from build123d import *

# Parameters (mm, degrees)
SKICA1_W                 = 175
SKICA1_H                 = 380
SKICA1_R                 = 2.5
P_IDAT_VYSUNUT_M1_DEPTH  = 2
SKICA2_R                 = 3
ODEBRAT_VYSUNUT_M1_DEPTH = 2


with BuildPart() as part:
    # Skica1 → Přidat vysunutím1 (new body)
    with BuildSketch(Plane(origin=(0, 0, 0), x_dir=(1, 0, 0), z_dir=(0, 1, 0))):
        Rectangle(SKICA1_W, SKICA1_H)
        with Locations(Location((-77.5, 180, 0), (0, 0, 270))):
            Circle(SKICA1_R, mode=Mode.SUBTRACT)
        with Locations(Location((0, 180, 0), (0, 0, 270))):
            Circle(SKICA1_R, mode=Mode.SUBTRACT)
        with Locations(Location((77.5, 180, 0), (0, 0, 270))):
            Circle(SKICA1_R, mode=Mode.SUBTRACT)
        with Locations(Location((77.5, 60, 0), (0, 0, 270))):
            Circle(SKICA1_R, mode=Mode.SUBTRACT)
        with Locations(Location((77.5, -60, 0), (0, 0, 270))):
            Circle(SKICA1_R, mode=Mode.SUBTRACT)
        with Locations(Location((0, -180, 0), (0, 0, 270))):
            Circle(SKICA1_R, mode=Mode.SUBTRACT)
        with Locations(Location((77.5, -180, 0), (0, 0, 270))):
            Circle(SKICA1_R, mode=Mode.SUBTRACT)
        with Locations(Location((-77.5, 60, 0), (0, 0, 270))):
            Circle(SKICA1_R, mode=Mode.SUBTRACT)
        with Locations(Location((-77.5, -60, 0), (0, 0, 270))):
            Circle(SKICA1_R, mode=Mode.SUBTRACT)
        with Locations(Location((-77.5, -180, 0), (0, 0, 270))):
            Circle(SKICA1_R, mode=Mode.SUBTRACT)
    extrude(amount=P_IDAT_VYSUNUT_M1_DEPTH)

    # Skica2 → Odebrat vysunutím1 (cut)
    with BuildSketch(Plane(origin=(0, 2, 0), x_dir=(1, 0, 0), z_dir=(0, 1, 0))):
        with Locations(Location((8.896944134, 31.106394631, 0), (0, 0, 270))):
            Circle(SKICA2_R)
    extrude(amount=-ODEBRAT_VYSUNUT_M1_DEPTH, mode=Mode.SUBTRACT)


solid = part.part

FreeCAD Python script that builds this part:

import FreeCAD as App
import Part
import Sketcher

V = App.Vector


def add_polygon(sketch, points):
    """Adds a closed chain of lines whose ends are joined by coincident constraints."""
    first, n = sketch.GeometryCount, len(points)
    for a, b in zip(points, points[1:] + points[:1]):
        sketch.addGeometry(Part.LineSegment(App.Vector(*a, 0), App.Vector(*b, 0)), False)
    for i in range(n):
        sketch.addConstraint(Sketcher.Constraint("Coincident", first + i, 2, first + (i + 1) % n, 1))

doc = App.newDocument("Part")
body = doc.addObject("PartDesign::Body", "Body")

sketch1 = body.newObject("Sketcher::SketchObject", "Sketch")
sketch1.AttachmentSupport = (doc.getObject("XZ_Plane"), [""])
sketch1.MapMode = "FlatFace"
add_polygon(sketch1, [(-87.5, -190), (-87.5, 190), (87.5, 190), (87.5, -190)])
sketch1.addGeometry(Part.Circle(V(-77.5, 180, 0), V(0, 0, 1), 2.5), False)
sketch1.addGeometry(Part.Circle(V(-77.5, 60, 0), V(0, 0, 1), 2.5), False)
sketch1.addGeometry(Part.Circle(V(0, 180, 0), V(0, 0, 1), 2.5), False)
sketch1.addGeometry(Part.Circle(V(77.5, 180, 0), V(0, 0, 1), 2.5), False)
sketch1.addGeometry(Part.Circle(V(77.5, 60, 0), V(0, 0, 1), 2.5), False)
sketch1.addGeometry(Part.Circle(V(-77.5, -60, 0), V(0, 0, 1), 2.5), False)
sketch1.addGeometry(Part.Circle(V(-77.5, -180, 0), V(0, 0, 1), 2.5), False)
sketch1.addGeometry(Part.Circle(V(77.5, -60, 0), V(0, 0, 1), 2.5), False)
sketch1.addGeometry(Part.Circle(V(0, -180, 0), V(0, 0, 1), 2.5), False)
sketch1.addGeometry(Part.Circle(V(77.5, -180, 0), V(0, 0, 1), 2.5), False)
sketch1.addConstraint(Sketcher.Constraint("Vertical", 0))
sketch1.addConstraint(Sketcher.Constraint("Horizontal", 1))
sketch1.addConstraint(Sketcher.Constraint("Vertical", 2))
sketch1.addConstraint(Sketcher.Constraint("Horizontal", 3))
sketch1.addConstraint(Sketcher.Constraint("Equal", 4, 5))
sketch1.addConstraint(Sketcher.Constraint("Equal", 5, 6))
sketch1.addConstraint(Sketcher.Constraint("Equal", 6, 7))
sketch1.addConstraint(Sketcher.Constraint("Equal", 7, 8))
sketch1.addConstraint(Sketcher.Constraint("Equal", 8, 9))
sketch1.addConstraint(Sketcher.Constraint("Equal", 9, 10))
sketch1.addConstraint(Sketcher.Constraint("Equal", 10, 11))
sketch1.addConstraint(Sketcher.Constraint("Equal", 11, 12))
sketch1.addConstraint(Sketcher.Constraint("Equal", 12, 13))
sketch1.addConstraint(Sketcher.Constraint("Symmetric", 8, 3, 9, 3, -1, 1))
sketch1.addConstraint(Sketcher.Constraint("Symmetric", 7, 3, 10, 3, -1, 1))
sketch1.addConstraint(Sketcher.Constraint("Symmetric", 5, 3, 11, 3, -1, 1))
sketch1.addConstraint(Sketcher.Constraint("Symmetric", 6, 3, 12, 3, -1, 1))
sketch1.addConstraint(Sketcher.Constraint("Symmetric", 4, 3, 13, 3, -1, 1))
sketch1.addConstraint(Sketcher.Constraint("Symmetric", 0, 2, 2, 2, -1, 1))
sketch1.addConstraint(Sketcher.Constraint("Symmetric", 4, 3, 7, 3, -2))
sketch1.addConstraint(Sketcher.Constraint("Symmetric", 5, 3, 8, 3, -2))
sketch1.addConstraint(Sketcher.Constraint("PointOnObject", 6, 3, -2))
sketch1.addConstraint(Sketcher.Constraint("Horizontal", 4, 3, 6, 3))
sketch1.addConstraint(Sketcher.Constraint("Vertical", 4, 3, 5, 3))
sketch1.addConstraint(Sketcher.Constraint("Diameter", 4, 5.0))
sketch1.addConstraint(Sketcher.Constraint("DistanceX", 1, 1, 1, 2, 175.0))
sketch1.addConstraint(Sketcher.Constraint("DistanceY", 0, 1, 0, 2, 380.0))
sketch1.addConstraint(Sketcher.Constraint("DistanceY", -1, 1, 4, 3, 180.0))
sketch1.addConstraint(Sketcher.Constraint("DistanceY", -1, 1, 5, 3, 60.0))
sketch1.addConstraint(Sketcher.Constraint("DistanceX", 4, 3, 7, 3, 155.0))
pad1 = body.newObject("PartDesign::Pad", "Pad")
pad1.Profile = sketch1
pad1.Length = 2
pad1.Reversed = True

sketch2 = body.newObject("Sketcher::SketchObject", "Sketch001")
sketch2.AttachmentSupport = (doc.getObject("XZ_Plane"), [""])
sketch2.MapMode = "FlatFace"
sketch2.AttachmentOffset = App.Placement(V(0, 0, -2), App.Rotation())
sketch2.addGeometry(Part.Circle(V(8.896944, -31.106395, 0), V(0, 0, 1), 3), False)
sketch2.addConstraint(Sketcher.Constraint("Diameter", 0, 6.0))
sketch2.addConstraint(Sketcher.Constraint("DistanceX", -1, 1, 0, 3, 8.896944))
sketch2.addConstraint(Sketcher.Constraint("DistanceY", 0, 3, -1, 1, 31.106395))
pocket1 = body.newObject("PartDesign::Pocket", "Pocket")
pocket1.Profile = sketch2
pocket1.Length = 2
pocket1.Reversed = True

doc.recompute()
